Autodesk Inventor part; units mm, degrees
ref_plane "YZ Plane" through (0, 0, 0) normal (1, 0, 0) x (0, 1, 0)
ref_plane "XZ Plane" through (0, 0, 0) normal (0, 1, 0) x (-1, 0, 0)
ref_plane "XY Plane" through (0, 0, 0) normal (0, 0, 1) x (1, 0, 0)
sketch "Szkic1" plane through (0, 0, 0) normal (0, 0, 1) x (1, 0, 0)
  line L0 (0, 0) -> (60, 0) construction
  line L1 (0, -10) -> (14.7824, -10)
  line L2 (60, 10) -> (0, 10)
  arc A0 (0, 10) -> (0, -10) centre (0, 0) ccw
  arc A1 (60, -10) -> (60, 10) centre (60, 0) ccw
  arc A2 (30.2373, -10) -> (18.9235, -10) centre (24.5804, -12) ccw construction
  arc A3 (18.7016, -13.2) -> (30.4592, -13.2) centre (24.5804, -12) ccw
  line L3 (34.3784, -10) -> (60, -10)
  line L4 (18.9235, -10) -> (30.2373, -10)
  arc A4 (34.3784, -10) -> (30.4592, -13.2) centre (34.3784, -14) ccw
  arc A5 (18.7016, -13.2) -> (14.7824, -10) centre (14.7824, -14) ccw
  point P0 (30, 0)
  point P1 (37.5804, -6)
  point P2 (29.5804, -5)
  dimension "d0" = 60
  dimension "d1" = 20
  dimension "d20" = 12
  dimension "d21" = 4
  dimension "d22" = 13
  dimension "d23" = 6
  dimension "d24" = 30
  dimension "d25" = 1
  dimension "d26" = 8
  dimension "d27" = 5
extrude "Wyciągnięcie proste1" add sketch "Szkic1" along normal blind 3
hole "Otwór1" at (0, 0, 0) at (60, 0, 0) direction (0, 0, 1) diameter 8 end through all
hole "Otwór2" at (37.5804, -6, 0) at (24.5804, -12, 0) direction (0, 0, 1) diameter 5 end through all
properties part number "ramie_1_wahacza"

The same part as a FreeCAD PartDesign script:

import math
import FreeCAD as App
import Part
import Sketcher

doc = App.newDocument("Part")
body = doc.addObject("PartDesign::Body", "Body")

# Sketch on XY plane
sketch1 = body.newObject("Sketcher::SketchObject", "Sketch")
sketch1.AttachmentSupport = (doc.getObject("XY_Plane"), [""])
sketch1.MapMode = "FlatFace"
sketch1.addGeometry([
    Part.ArcOfCircle(Part.Circle(App.Vector(0, 0, 0), App.Vector(0, 0, 1), 10), math.radians(90), math.radians(270)),  # 0
    Part.LineSegment(App.Vector(0, -10, 0), App.Vector(14.8, -10, 0)),  # 1
    Part.ArcOfCircle(Part.Circle(App.Vector(14.8, -14, 0), App.Vector(0, 0, 1), 4), math.radians(12), math.radians(90)),  # 2
    Part.ArcOfCircle(Part.Circle(App.Vector(24.6, -12, 0), App.Vector(0, 0, 1), 6), math.radians(-168), math.radians(-12)),  # 3
    Part.ArcOfCircle(Part.Circle(App.Vector(34.4, -14, 0), App.Vector(0, 0, 1), 4), math.radians(90), math.radians(168)),  # 4
    Part.LineSegment(App.Vector(34.4, -10, 0), App.Vector(60, -10, 0)),  # 5
    Part.ArcOfCircle(Part.Circle(App.Vector(60, 0, 0), App.Vector(0, 0, 1), 10), math.radians(-90), math.radians(90)),  # 6
    Part.LineSegment(App.Vector(60, 10, 0), App.Vector(0, 10, 0)),  # 7
], False)
sketch1.addConstraint([
    Sketcher.Constraint("Tangent", 0, 2, 1, 1),
    Sketcher.Constraint("Tangent", 1, 2, 2, 2),
    Sketcher.Constraint("Tangent", 2, 1, 3, 1),
    Sketcher.Constraint("Tangent", 3, 2, 4, 2),
    Sketcher.Constraint("Tangent", 4, 1, 5, 1),
    Sketcher.Constraint("Tangent", 5, 2, 6, 1),
    Sketcher.Constraint("Tangent", 6, 2, 7, 1),
    Sketcher.Constraint("Tangent", 7, 2, 0, 1),
    Sketcher.Constraint("Horizontal", 1),
    Sketcher.Constraint("Horizontal", 5),
    Sketcher.Constraint("Horizontal", 7),
    Sketcher.Constraint("Coincident", 0, 3, -1, 1),
    Sketcher.Constraint("Equal", 2, 4),
    Sketcher.Constraint("Equal", 0, 6),
    Sketcher.Constraint("Radius", 0, 10.0),
    Sketcher.Constraint("Radius", 2, 4.0),
    Sketcher.Constraint("Radius", 3, 6.0),
    Sketcher.Constraint("DistanceX", 7, 2, 7, 1, 60.0),
    Sketcher.Constraint("DistanceY", 3, 3, -1, 1, 12.0),
    Sketcher.Constraint("DistanceX", 1, 1, 1, 2, 14.7824),
])
pad1 = body.newObject("PartDesign::Pad", "Pad")
pad1.Profile = sketch1
pad1.Length = 3

# Sketch on XY plane
sketch2 = body.newObject("Sketcher::SketchObject", "Sketch001")
sketch2.AttachmentSupport = (doc.getObject("XY_Plane"), [""])
sketch2.MapMode = "FlatFace"
sketch2.addGeometry([
    Part.Circle(App.Vector(0, 0, 0), App.Vector(0, 0, 1), 4),
    Part.Circle(App.Vector(60, 0, 0), App.Vector(0, 0, 1), 4),
], False)
sketch2.addConstraint([
    Sketcher.Constraint("Coincident", 0, 3, -1, 1),
    Sketcher.Constraint("Equal", 0, 1),
    Sketcher.Constraint("PointOnObject", 1, 3, -1),
    Sketcher.Constraint("Diameter", 0, 8.0),
    Sketcher.Constraint("DistanceX", -1, 1, 1, 3, 60.0),
])
doc.recompute()
hole = body.newObject("PartDesign::Hole", "Hole")
hole.Profile = sketch2
hole.ThreadType = "None"
hole.Diameter = 8
hole.DepthType = "ThroughAll"
hole.Reversed = True

# Sketch on XY plane
sketch3 = body.newObject("Sketcher::SketchObject", "Sketch002")
sketch3.AttachmentSupport = (doc.getObject("XY_Plane"), [""])
sketch3.MapMode = "FlatFace"
sketch3.addGeometry([
    Part.Circle(App.Vector(37.6, -6, 0), App.Vector(0, 0, 1), 2.5),
    Part.Circle(App.Vector(24.6, -12, 0), App.Vector(0, 0, 1), 2.5),
], False)
sketch3.addConstraint([
    Sketcher.Constraint("Equal", 0, 1),
    Sketcher.Constraint("Diameter", 0, 5.0),
    Sketcher.Constraint("DistanceY", 0, 3, -1, 1, 6.0),
    Sketcher.Constraint("DistanceY", 1, 3, -1, 1, 12.0),
    Sketcher.Constraint("DistanceX", 1, 3, 0, 3, 13.0),
    Sketcher.Constraint("DistanceX", -1, 1, 0, 3, 37.5804),
])
doc.recompute()
hole2 = body.newObject("PartDesign::Hole", "Hole001")
hole2.Profile = sketch3
hole2.ThreadType = "None"
hole2.Diameter = 5
hole2.DepthType = "ThroughAll"
hole2.Reversed = True

doc.recompute()
